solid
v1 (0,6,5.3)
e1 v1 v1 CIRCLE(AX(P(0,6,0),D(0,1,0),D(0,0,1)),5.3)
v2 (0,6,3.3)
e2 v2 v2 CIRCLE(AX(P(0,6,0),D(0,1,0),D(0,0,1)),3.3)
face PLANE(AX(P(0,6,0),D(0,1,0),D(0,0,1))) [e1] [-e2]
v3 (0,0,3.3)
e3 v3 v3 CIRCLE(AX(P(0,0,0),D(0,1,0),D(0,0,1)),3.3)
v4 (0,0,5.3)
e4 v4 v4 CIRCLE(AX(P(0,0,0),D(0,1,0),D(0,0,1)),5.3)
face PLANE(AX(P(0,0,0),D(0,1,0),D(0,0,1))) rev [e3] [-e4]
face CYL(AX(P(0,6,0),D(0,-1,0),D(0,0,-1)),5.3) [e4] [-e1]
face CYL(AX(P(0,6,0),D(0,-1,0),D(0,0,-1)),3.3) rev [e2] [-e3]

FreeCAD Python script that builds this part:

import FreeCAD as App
import Part
import Sketcher
from FreeCAD import Vector

doc = App.newDocument("Part")
params = doc.addObject("Spreadsheet::Sheet", "Params")
for row, (alias, value) in enumerate([
    ("sketch1_diameter", "10.6 mm"),
    ("sketch1_diameter2", "6.6 mm"),
    ("pad1_length", "6 mm"),
], start=1):
    params.set(f"A{row}", alias)
    params.set(f"B{row}", "=" + value)
    params.setAlias(f"B{row}", alias)

body = doc.addObject("PartDesign::Body", "Body")

# Sketch on XZ plane
sketch1 = doc.addObject("Sketcher::SketchObject", "Sketch")
body.addObject(sketch1)
sketch1.AttachmentSupport = (doc.XZ_Plane, [""])
sketch1.MapMode = "FlatFace"
sketch1.addGeometry([
    Part.Circle(Vector(0, 0, 0), Vector(0, 0, 1), 5.3),
    Part.Circle(Vector(0, 0, 0), Vector(0, 0, 1), 3.3),
], False)
sketch1.addConstraint([
    Sketcher.Constraint("Coincident", 0, 3, -1, 1),
    Sketcher.Constraint("Coincident", 1, 3, -1, 1),
    Sketcher.Constraint("Diameter", 0, 10.6),
    Sketcher.Constraint("Diameter", 1, 6.6),
])
sketch1.setExpression("Constraints[2]", "Params.sketch1_diameter")
sketch1.setExpression("Constraints[3]", "Params.sketch1_diameter2")
pad1 = doc.addObject("PartDesign::Pad", "Pad")
body.addObject(pad1)
pad1.Profile = sketch1
pad1.setExpression("Length", "Params.pad1_length")
pad1.Reversed = True

doc.recompute()
